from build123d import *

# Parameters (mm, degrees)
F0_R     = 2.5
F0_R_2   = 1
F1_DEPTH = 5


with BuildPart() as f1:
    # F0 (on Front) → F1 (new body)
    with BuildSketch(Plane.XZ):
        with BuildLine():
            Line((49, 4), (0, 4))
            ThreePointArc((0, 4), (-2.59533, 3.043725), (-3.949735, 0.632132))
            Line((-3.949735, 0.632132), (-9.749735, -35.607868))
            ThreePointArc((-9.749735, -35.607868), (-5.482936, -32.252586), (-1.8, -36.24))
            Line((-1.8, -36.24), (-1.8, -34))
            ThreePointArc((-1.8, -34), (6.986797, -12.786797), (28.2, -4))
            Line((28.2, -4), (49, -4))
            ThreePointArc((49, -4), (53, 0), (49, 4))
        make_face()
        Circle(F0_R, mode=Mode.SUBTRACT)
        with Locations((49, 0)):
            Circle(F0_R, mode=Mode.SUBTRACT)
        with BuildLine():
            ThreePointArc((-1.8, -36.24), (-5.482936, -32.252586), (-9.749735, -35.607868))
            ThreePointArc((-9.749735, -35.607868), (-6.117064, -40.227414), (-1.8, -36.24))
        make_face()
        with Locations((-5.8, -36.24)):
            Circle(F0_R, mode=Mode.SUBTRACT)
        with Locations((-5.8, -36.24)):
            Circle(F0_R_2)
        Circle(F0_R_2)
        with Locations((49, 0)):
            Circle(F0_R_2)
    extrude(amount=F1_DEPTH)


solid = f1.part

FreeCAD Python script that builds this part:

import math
import FreeCAD as App
import Part
import Sketcher
from FreeCAD import Vector
Q = App.Units.Quantity

doc = App.newDocument("Part")
params = doc.addObject("Spreadsheet::Sheet", "Params")
for row, (alias, value) in enumerate([
    ("sketch1_diameter", "5 mm"),
    ("sketch1_diameter2", "2 mm"),
    ("sketch1_radius", "3.999999 mm"),
    ("sketch1_radius2", "30.000001 mm"),
    ("sketch1_width", "49 mm"),
    ("pad1_length", "5 mm"),
], start=1):
    params.set(f"A{row}", alias)
    params.set(f"B{row}", "=" + value)
    params.setAlias(f"B{row}", alias)

body = doc.addObject("PartDesign::Body", "Body")
body.AllowCompound = True

# Sketch on XZ plane
sketch1 = body.newObject("Sketcher::SketchObject", "Sketch")
sketch1.AttachmentSupport = (doc.getObject("XZ_Plane"), [""])
sketch1.MapMode = "FlatFace"
sketch1.addGeometry([
    Part.LineSegment(Vector(49, 4, 0), Vector(0, 4, 0)),  # 0
    Part.ArcOfCircle(Part.Circle(Vector(0, 0, 0), Vector(0, 0, 1), 4), math.radians(90), math.radians(171)),  # 1
    Part.LineSegment(Vector(-3.9, 0.6, 0), Vector(-9.7, -35.6, 0)),  # 2
    Part.ArcOfCircle(Part.Circle(Vector(-5.8, -36.2, 0), Vector(0, 0, 1), 4), math.radians(171), math.radians(360)),  # 3
    Part.LineSegment(Vector(-1.8, -36.2, 0), Vector(-1.8, -34, 0)),  # 4
    Part.ArcOfCircle(Part.Circle(Vector(28.2, -34, 0), Vector(0, 0, 1), 30), math.radians(90), math.radians(180)),  # 5
    Part.LineSegment(Vector(28.2, -4, 0), Vector(49, -4, 0)),  # 6
    Part.ArcOfCircle(Part.Circle(Vector(49, 0, 0), Vector(0, 0, 1), 4), math.radians(-90), math.radians(90)),  # 7
    Part.Circle(Vector(-5.8, -36.2, 0), Vector(0, 0, 1), 2.5),  # 8
    Part.Circle(Vector(0, 0, 0), Vector(0, 0, 1), 2.5),  # 9
    Part.Circle(Vector(49, 0, 0), Vector(0, 0, 1), 2.5),  # 10
    Part.Circle(Vector(-5.8, -36.2, 0), Vector(0, 0, 1), 1),  # 11
    Part.Circle(Vector(0, 0, 0), Vector(0, 0, 1), 1),  # 12
    Part.Circle(Vector(49, 0, 0), Vector(0, 0, 1), 1),  # 13
], False)
sketch1.addConstraint([
    Sketcher.Constraint("Tangent", 0, 2, 1, 1),
    Sketcher.Constraint("Tangent", 1, 2, 2, 1),
    Sketcher.Constraint("Tangent", 2, 2, 3, 1),
    Sketcher.Constraint("Tangent", 3, 2, 4, 1),
    Sketcher.Constraint("Tangent", 4, 2, 5, 2),
    Sketcher.Constraint("Tangent", 5, 1, 6, 1),
    Sketcher.Constraint("Tangent", 6, 2, 7, 1),
    Sketcher.Constraint("Tangent", 7, 2, 0, 1),
    Sketcher.Constraint("Horizontal", 0),
    Sketcher.Constraint("Vertical", 4),
    Sketcher.Constraint("Horizontal", 6),
    Sketcher.Constraint("Coincident", 1, 3, -1, 1),
    Sketcher.Constraint("Coincident", 9, 3, -1, 1),
    Sketcher.Constraint("Coincident", 12, 3, -1, 1),
    Sketcher.Constraint("Coincident", 8, 3, 3, 3),
    Sketcher.Constraint("Coincident", 10, 3, 7, 3),
    Sketcher.Constraint("Coincident", 11, 3, 3, 3),
    Sketcher.Constraint("Coincident", 13, 3, 7, 3),
    Sketcher.Constraint("Equal", 1, 3),
    Sketcher.Constraint("Equal", 3, 7),
    Sketcher.Constraint("Equal", 8, 9),
    Sketcher.Constraint("Equal", 9, 10),
    Sketcher.Constraint("Equal", 11, 12),
    Sketcher.Constraint("Equal", 12, 13),
    Sketcher.Constraint("Diameter", 8, Q("5 mm")),
    Sketcher.Constraint("Diameter", 11, Q("2 mm")),
    Sketcher.Constraint("Radius", 1, Q("3.999999 mm")),
    Sketcher.Constraint("Radius", 5, Q("30.000001 mm")),
    Sketcher.Constraint("DistanceX", 0, 2, 0, 1, Q("49 mm")),
    Sketcher.Constraint("DistanceX", 6, 1, 6, 2, Q("20.8 mm")),
    Sketcher.Constraint("DistanceY", 4, 1, 4, 2, Q("2.24 mm")),
])
sketch1.setExpression("Constraints[24]", "Params.sketch1_diameter")
sketch1.setExpression("Constraints[25]", "Params.sketch1_diameter2")
sketch1.setExpression("Constraints[26]", "Params.sketch1_radius")
sketch1.setExpression("Constraints[27]", "Params.sketch1_radius2")
sketch1.setExpression("Constraints[28]", "Params.sketch1_width")
pad1 = body.newObject("PartDesign::Pad", "Pad")
pad1.Profile = sketch1
pad1.setExpression("Length", "Params.pad1_length")

doc.recompute()
